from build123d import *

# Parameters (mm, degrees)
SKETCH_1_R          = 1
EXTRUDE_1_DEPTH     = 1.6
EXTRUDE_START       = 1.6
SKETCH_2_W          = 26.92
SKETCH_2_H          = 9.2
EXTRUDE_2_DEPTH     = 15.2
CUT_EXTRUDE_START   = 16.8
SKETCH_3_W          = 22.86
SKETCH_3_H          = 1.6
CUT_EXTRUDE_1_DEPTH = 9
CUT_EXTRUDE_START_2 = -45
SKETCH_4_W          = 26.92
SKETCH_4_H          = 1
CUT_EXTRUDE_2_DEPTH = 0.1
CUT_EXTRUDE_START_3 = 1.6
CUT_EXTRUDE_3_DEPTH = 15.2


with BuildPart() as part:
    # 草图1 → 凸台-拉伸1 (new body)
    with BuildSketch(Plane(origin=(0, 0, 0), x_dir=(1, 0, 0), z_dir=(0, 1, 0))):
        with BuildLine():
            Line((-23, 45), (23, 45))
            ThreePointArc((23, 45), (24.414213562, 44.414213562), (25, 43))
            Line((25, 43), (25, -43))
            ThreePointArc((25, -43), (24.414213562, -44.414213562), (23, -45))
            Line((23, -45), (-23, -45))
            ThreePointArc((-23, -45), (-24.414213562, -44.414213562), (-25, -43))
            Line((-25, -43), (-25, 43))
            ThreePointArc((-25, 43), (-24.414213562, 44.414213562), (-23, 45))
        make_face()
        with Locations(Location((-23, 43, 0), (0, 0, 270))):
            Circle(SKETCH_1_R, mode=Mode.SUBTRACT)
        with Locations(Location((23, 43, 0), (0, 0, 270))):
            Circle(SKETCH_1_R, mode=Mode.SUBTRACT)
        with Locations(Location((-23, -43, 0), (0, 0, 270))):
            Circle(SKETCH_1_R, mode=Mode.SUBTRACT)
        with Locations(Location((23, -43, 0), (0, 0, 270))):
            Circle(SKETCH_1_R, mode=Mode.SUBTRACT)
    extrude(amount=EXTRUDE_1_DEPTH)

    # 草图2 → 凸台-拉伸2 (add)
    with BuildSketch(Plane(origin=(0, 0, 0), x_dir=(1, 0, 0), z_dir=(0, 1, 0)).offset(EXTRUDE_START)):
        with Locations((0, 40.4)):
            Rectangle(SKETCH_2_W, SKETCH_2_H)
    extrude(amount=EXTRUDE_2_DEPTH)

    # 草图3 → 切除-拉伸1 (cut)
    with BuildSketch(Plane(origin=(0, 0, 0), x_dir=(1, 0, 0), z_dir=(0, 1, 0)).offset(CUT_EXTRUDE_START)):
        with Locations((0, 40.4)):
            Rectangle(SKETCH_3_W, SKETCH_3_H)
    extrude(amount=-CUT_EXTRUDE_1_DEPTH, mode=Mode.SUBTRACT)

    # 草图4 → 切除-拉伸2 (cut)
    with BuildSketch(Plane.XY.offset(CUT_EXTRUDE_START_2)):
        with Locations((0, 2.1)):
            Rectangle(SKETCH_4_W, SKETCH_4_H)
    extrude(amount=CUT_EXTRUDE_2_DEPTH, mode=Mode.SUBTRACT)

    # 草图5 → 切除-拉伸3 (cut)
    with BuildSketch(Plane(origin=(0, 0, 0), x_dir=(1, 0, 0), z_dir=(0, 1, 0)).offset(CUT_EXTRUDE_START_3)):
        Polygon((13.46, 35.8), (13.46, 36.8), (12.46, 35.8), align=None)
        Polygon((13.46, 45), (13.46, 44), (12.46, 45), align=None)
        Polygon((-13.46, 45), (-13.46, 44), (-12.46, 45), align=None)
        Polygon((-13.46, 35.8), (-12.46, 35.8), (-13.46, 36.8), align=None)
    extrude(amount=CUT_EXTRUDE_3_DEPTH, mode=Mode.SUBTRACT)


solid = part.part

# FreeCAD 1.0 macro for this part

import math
import FreeCAD as App
import Part
import Sketcher

V = App.Vector


def add_polygon(sketch, points):
    """Adds a closed chain of lines whose ends are joined by coincident constraints."""
    first, n = sketch.GeometryCount, len(points)
    for a, b in zip(points, points[1:] + points[:1]):
        sketch.addGeometry(Part.LineSegment(App.Vector(*a, 0), App.Vector(*b, 0)), False)
    for i in range(n):
        sketch.addConstraint(Sketcher.Constraint("Coincident", first + i, 2, first + (i + 1) % n, 1))

doc = App.newDocument("Part")
params = doc.addObject("Spreadsheet::Sheet", "Params")
for row, (alias, value) in enumerate([
    ("sketch1_diameter", "2 mm"),
    ("sketch1_radius", "2 mm"),
    ("sketch1_width", "46 mm"),
    ("sketch1_height", "86 mm"),
    ("pad1_length", "1.6 mm"),
    ("sketch2_height", "9.2 mm"),
    ("sketch2_width", "26.92 mm"),
    ("pad2_length", "15.2 mm"),
    ("sketch3_height", "1.6 mm"),
    ("sketch3_width", "22.86 mm"),
    ("pocket1_length", "9 mm"),
    ("sketch4_height", "1 mm"),
    ("sketch4_width", "26.92 mm"),
    ("pocket2_length", "0.1 mm"),
    ("sketch5_width", "1 mm"),
    ("pocket3_length", "15.2 mm"),
], start=1):
    params.set(f"A{row}", alias)
    params.set(f"B{row}", "=" + value)
    params.setAlias(f"B{row}", alias)

body = doc.addObject("PartDesign::Body", "Body")

sketch1 = body.newObject("Sketcher::SketchObject", "Sketch")
sketch1.AttachmentSupport = (doc.getObject("XZ_Plane"), [""])
sketch1.MapMode = "FlatFace"
sketch1.addGeometry(Part.LineSegment(V(23, -45, 0), V(-23, -45, 0)), False)
sketch1.addGeometry(Part.ArcOfCircle(Part.Circle(V(-23, -43, 0), V(0, 0, 1), 2), math.radians(-180), math.radians(-90)), False)
sketch1.addGeometry(Part.LineSegment(V(-25, -43, 0), V(-25, 43, 0)), False)
sketch1.addGeometry(Part.ArcOfCircle(Part.Circle(V(-23, 43, 0), V(0, 0, 1), 2), math.radians(90), math.radians(180)), False)
sketch1.addGeometry(Part.LineSegment(V(-23, 45, 0), V(23, 45, 0)), False)
sketch1.addGeometry(Part.ArcOfCircle(Part.Circle(V(23, 43, 0), V(0, 0, 1), 2), math.radians(0), math.radians(90)), False)
sketch1.addGeometry(Part.LineSegment(V(25, 43, 0), V(25, -43, 0)), False)
sketch1.addGeometry(Part.ArcOfCircle(Part.Circle(V(23, -43, 0), V(0, 0, 1), 2), math.radians(-90), math.radians(0)), False)
sketch1.addGeometry(Part.Circle(V(23, 43, 0), V(0, 0, 1), 1), False)
sketch1.addGeometry(Part.Circle(V(-23, 43, 0), V(0, 0, 1), 1), False)
sketch1.addGeometry(Part.Circle(V(23, -43, 0), V(0, 0, 1), 1), False)
sketch1.addGeometry(Part.Circle(V(-23, -43, 0), V(0, 0, 1), 1), False)
sketch1.addConstraint(Sketcher.Constraint("Tangent", 0, 2, 1, 2))
sketch1.addConstraint(Sketcher.Constraint("Tangent", 1, 1, 2, 1))
sketch1.addConstraint(Sketcher.Constraint("Tangent", 2, 2, 3, 2))
sketch1.addConstraint(Sketcher.Constraint("Tangent", 3, 1, 4, 1))
sketch1.addConstraint(Sketcher.Constraint("Tangent", 4, 2, 5, 2))
sketch1.addConstraint(Sketcher.Constraint("Tangent", 5, 1, 6, 1))
sketch1.addConstraint(Sketcher.Constraint("Tangent", 6, 2, 7, 2))
sketch1.addConstraint(Sketcher.Constraint("Tangent", 7, 1, 0, 1))
sketch1.addConstraint(Sketcher.Constraint("Horizontal", 0))
sketch1.addConstraint(Sketcher.Constraint("Vertical", 2))
sketch1.addConstraint(Sketcher.Constraint("Horizontal", 4))
sketch1.addConstraint(Sketcher.Constraint("Vertical", 6))
sketch1.addConstraint(Sketcher.Constraint("Coincident", 8, 3, 5, 3))
sketch1.addConstraint(Sketcher.Constraint("Coincident", 9, 3, 3, 3))
sketch1.addConstraint(Sketcher.Constraint("Coincident", 10, 3, 7, 3))
sketch1.addConstraint(Sketcher.Constraint("Coincident", 11, 3, 1, 3))
sketch1.addConstraint(Sketcher.Constraint("Equal", 1, 3))
sketch1.addConstraint(Sketcher.Constraint("Equal", 3, 5))
sketch1.addConstraint(Sketcher.Constraint("Equal", 5, 7))
sketch1.addConstraint(Sketcher.Constraint("Equal", 8, 9))
sketch1.addConstraint(Sketcher.Constraint("Equal", 9, 10))
sketch1.addConstraint(Sketcher.Constraint("Equal", 10, 11))
sketch1.addConstraint(Sketcher.Constraint("Symmetric", 1, 3, 5, 3, -1, 1))
sketch1.addConstraint(Sketcher.Constraint("Diameter", 8, 2.0))
sketch1.addConstraint(Sketcher.Constraint("Radius", 1, 2.0))
sketch1.addConstraint(Sketcher.Constraint("DistanceX", 0, 2, 0, 1, 46.0))
sketch1.addConstraint(Sketcher.Constraint("DistanceY", 2, 1, 2, 2, 86.0))
sketch1.setExpression("Constraints[23]", "Params.sketch1_diameter")
sketch1.setExpression("Constraints[24]", "Params.sketch1_radius")
sketch1.setExpression("Constraints[25]", "Params.sketch1_width")
sketch1.setExpression("Constraints[26]", "Params.sketch1_height")
pad1 = body.newObject("PartDesign::Pad", "Pad")
pad1.Profile = sketch1
pad1.setExpression("Length", "Params.pad1_length")
pad1.Reversed = True

sketch2 = body.newObject("Sketcher::SketchObject", "Sketch001")
sketch2.AttachmentSupport = (doc.getObject("XZ_Plane"), [""])
sketch2.MapMode = "FlatFace"
sketch2.AttachmentOffset = App.Placement(V(0, 0, -1.6), App.Rotation())
add_polygon(sketch2, [(-13.46, -45), (-13.46, -35.8), (13.46, -35.8), (13.46, -45)])
sketch2.addConstraint(Sketcher.Constraint("Vertical", 0))
sketch2.addConstraint(Sketcher.Constraint("Horizontal", 1))
sketch2.addConstraint(Sketcher.Constraint("Vertical", 2))
sketch2.addConstraint(Sketcher.Constraint("Horizontal", 3))
sketch2.addConstraint(Sketcher.Constraint("DistanceY", 0, 1, 0, 2, 9.2))
sketch2.addConstraint(Sketcher.Constraint("DistanceY", 2, 2, -1, 1, 45.0))
sketch2.addConstraint(Sketcher.Constraint("DistanceX", 1, 1, 1, 2, 26.92))
sketch2.addConstraint(Sketcher.Constraint("DistanceX", 0, 2, -1, 1, 13.46))
sketch2.setExpression("Constraints[8]", "Params.sketch2_height")
sketch2.setExpression("Constraints[10]", "Params.sketch2_width")
pad2 = body.newObject("PartDesign::Pad", "Pad001")
pad2.Profile = sketch2
pad2.setExpression("Length", "Params.pad2_length")
pad2.Reversed = True

sketch3 = body.newObject("Sketcher::SketchObject", "Sketch002")
sketch3.AttachmentSupport = (doc.getObject("XZ_Plane"), [""])
sketch3.MapMode = "FlatFace"
sketch3.AttachmentOffset = App.Placement(V(0, 0, -16.8), App.Rotation())
add_polygon(sketch3, [(-11.43, -41.2), (-11.43, -39.6), (11.43, -39.6), (11.43, -41.2)])
sketch3.addConstraint(Sketcher.Constraint("Vertical", 0))
sketch3.addConstraint(Sketcher.Constraint("Horizontal", 1))
sketch3.addConstraint(Sketcher.Constraint("Vertical", 2))
sketch3.addConstraint(Sketcher.Constraint("Horizontal", 3))
sketch3.addConstraint(Sketcher.Constraint("DistanceY", 0, 1, 0, 2, 1.6))
sketch3.addConstraint(Sketcher.Constraint("DistanceX", 1, 1, 1, 2, 22.86))
sketch3.addConstraint(Sketcher.Constraint("DistanceY", 0, 2, -1, 1, 39.6))
sketch3.addConstraint(Sketcher.Constraint("DistanceX", 0, 2, -1, 1, 11.43))
sketch3.setExpression("Constraints[8]", "Params.sketch3_height")
sketch3.setExpression("Constraints[9]", "Params.sketch3_width")
pocket1 = body.newObject("PartDesign::Pocket", "Pocket")
pocket1.Profile = sketch3
pocket1.setExpression("Length", "Params.pocket1_length")
pocket1.Reversed = True

sketch4 = body.newObject("Sketcher::SketchObject", "Sketch003")
sketch4.AttachmentSupport = (doc.getObject("XY_Plane"), [""])
sketch4.MapMode = "FlatFace"
sketch4.AttachmentOffset = App.Placement(V(0, 0, -45), App.Rotation())
add_polygon(sketch4, [(-13.46, 2.6), (-13.46, 1.6), (13.46, 1.6), (13.46, 2.6)])
sketch4.addConstraint(Sketcher.Constraint("Vertical", 0))
sketch4.addConstraint(Sketcher.Constraint("Horizontal", 1))
sketch4.addConstraint(Sketcher.Constraint("Vertical", 2))
sketch4.addConstraint(Sketcher.Constraint("Horizontal", 3))
sketch4.addConstraint(Sketcher.Constraint("DistanceY", 0, 2, 0, 1, 1.0))
sketch4.addConstraint(Sketcher.Constraint("DistanceX", 1, 1, 1, 2, 26.92))
sketch4.addConstraint(Sketcher.Constraint("DistanceY", -1, 1, 0, 2, 1.6))
sketch4.addConstraint(Sketcher.Constraint("DistanceX", 0, 2, -1, 1, 13.46))
sketch4.setExpression("Constraints[8]", "Params.sketch4_height")
sketch4.setExpression("Constraints[9]", "Params.sketch4_width")
pocket2 = body.newObject("PartDesign::Pocket", "Pocket001")
pocket2.Profile = sketch4
pocket2.setExpression("Length", "Params.pocket2_length")
pocket2.Reversed = True

sketch5 = body.newObject("Sketcher::SketchObject", "Sketch004")
sketch5.AttachmentSupport = (doc.getObject("XZ_Plane"), [""])
sketch5.MapMode = "FlatFace"
sketch5.AttachmentOffset = App.Placement(V(0, 0, -1.6), App.Rotation())
add_polygon(sketch5, [(13.46, -35.8), (13.46, -36.8), (12.46, -35.8)])
add_polygon(sketch5, [(13.46, -44), (13.46, -45), (12.46, -45)])
add_polygon(sketch5, [(-13.46, -45), (-13.46, -44), (-12.46, -45)])
add_polygon(sketch5, [(-13.46, -35.8), (-12.46, -35.8), (-13.46, -36.8)])
sketch5.addConstraint(Sketcher.Constraint("Vertical", 0))
sketch5.addConstraint(Sketcher.Constraint("Horizontal", 2))
sketch5.addConstraint(Sketcher.Constraint("Vertical", 3))
sketch5.addConstraint(Sketcher.Constraint("Horizontal", 4))
sketch5.addConstraint(Sketcher.Constraint("Vertical", 6))
sketch5.addConstraint(Sketcher.Constraint("Horizontal", 8))
sketch5.addConstraint(Sketcher.Constraint("Horizontal", 9))
sketch5.addConstraint(Sketcher.Constraint("Vertical", 11))
sketch5.addConstraint(Sketcher.Constraint("Symmetric", 5, 2, 6, 2, -2))
sketch5.addConstraint(Sketcher.Constraint("Symmetric", 4, 2, 7, 2, -2))
sketch5.addConstraint(Sketcher.Constraint("Symmetric", 1, 2, 9, 2, -2))
sketch5.addConstraint(Sketcher.Constraint("Symmetric", 0, 2, 10, 2, -2))
sketch5.addConstraint(Sketcher.Constraint("Perpendicular", 1, 5))
sketch5.addConstraint(Sketcher.Constraint("Perpendicular", 5, 7))
sketch5.addConstraint(Sketcher.Constraint("Vertical", 2, 2, 3, 2))
sketch5.addConstraint(Sketcher.Constraint("Vertical", 1, 2, 4, 2))
sketch5.addConstraint(Sketcher.Constraint("DistanceX", 2, 1, 2, 2, 1.0))
sketch5.addConstraint(Sketcher.Constraint("DistanceY", 3, 2, -1, 1, 45.0))
sketch5.addConstraint(Sketcher.Constraint("DistanceY", 0, 2, -1, 1, 36.8))
sketch5.addConstraint(Sketcher.Constraint("DistanceX", -1, 1, 0, 2, 13.46))
sketch5.setExpression("Constraints[28]", "Params.sketch5_width")
pocket3 = body.newObject("PartDesign::Pocket", "Pocket002")
pocket3.Profile = sketch5
pocket3.setExpression("Length", "Params.pocket3_length")

doc.recompute()
